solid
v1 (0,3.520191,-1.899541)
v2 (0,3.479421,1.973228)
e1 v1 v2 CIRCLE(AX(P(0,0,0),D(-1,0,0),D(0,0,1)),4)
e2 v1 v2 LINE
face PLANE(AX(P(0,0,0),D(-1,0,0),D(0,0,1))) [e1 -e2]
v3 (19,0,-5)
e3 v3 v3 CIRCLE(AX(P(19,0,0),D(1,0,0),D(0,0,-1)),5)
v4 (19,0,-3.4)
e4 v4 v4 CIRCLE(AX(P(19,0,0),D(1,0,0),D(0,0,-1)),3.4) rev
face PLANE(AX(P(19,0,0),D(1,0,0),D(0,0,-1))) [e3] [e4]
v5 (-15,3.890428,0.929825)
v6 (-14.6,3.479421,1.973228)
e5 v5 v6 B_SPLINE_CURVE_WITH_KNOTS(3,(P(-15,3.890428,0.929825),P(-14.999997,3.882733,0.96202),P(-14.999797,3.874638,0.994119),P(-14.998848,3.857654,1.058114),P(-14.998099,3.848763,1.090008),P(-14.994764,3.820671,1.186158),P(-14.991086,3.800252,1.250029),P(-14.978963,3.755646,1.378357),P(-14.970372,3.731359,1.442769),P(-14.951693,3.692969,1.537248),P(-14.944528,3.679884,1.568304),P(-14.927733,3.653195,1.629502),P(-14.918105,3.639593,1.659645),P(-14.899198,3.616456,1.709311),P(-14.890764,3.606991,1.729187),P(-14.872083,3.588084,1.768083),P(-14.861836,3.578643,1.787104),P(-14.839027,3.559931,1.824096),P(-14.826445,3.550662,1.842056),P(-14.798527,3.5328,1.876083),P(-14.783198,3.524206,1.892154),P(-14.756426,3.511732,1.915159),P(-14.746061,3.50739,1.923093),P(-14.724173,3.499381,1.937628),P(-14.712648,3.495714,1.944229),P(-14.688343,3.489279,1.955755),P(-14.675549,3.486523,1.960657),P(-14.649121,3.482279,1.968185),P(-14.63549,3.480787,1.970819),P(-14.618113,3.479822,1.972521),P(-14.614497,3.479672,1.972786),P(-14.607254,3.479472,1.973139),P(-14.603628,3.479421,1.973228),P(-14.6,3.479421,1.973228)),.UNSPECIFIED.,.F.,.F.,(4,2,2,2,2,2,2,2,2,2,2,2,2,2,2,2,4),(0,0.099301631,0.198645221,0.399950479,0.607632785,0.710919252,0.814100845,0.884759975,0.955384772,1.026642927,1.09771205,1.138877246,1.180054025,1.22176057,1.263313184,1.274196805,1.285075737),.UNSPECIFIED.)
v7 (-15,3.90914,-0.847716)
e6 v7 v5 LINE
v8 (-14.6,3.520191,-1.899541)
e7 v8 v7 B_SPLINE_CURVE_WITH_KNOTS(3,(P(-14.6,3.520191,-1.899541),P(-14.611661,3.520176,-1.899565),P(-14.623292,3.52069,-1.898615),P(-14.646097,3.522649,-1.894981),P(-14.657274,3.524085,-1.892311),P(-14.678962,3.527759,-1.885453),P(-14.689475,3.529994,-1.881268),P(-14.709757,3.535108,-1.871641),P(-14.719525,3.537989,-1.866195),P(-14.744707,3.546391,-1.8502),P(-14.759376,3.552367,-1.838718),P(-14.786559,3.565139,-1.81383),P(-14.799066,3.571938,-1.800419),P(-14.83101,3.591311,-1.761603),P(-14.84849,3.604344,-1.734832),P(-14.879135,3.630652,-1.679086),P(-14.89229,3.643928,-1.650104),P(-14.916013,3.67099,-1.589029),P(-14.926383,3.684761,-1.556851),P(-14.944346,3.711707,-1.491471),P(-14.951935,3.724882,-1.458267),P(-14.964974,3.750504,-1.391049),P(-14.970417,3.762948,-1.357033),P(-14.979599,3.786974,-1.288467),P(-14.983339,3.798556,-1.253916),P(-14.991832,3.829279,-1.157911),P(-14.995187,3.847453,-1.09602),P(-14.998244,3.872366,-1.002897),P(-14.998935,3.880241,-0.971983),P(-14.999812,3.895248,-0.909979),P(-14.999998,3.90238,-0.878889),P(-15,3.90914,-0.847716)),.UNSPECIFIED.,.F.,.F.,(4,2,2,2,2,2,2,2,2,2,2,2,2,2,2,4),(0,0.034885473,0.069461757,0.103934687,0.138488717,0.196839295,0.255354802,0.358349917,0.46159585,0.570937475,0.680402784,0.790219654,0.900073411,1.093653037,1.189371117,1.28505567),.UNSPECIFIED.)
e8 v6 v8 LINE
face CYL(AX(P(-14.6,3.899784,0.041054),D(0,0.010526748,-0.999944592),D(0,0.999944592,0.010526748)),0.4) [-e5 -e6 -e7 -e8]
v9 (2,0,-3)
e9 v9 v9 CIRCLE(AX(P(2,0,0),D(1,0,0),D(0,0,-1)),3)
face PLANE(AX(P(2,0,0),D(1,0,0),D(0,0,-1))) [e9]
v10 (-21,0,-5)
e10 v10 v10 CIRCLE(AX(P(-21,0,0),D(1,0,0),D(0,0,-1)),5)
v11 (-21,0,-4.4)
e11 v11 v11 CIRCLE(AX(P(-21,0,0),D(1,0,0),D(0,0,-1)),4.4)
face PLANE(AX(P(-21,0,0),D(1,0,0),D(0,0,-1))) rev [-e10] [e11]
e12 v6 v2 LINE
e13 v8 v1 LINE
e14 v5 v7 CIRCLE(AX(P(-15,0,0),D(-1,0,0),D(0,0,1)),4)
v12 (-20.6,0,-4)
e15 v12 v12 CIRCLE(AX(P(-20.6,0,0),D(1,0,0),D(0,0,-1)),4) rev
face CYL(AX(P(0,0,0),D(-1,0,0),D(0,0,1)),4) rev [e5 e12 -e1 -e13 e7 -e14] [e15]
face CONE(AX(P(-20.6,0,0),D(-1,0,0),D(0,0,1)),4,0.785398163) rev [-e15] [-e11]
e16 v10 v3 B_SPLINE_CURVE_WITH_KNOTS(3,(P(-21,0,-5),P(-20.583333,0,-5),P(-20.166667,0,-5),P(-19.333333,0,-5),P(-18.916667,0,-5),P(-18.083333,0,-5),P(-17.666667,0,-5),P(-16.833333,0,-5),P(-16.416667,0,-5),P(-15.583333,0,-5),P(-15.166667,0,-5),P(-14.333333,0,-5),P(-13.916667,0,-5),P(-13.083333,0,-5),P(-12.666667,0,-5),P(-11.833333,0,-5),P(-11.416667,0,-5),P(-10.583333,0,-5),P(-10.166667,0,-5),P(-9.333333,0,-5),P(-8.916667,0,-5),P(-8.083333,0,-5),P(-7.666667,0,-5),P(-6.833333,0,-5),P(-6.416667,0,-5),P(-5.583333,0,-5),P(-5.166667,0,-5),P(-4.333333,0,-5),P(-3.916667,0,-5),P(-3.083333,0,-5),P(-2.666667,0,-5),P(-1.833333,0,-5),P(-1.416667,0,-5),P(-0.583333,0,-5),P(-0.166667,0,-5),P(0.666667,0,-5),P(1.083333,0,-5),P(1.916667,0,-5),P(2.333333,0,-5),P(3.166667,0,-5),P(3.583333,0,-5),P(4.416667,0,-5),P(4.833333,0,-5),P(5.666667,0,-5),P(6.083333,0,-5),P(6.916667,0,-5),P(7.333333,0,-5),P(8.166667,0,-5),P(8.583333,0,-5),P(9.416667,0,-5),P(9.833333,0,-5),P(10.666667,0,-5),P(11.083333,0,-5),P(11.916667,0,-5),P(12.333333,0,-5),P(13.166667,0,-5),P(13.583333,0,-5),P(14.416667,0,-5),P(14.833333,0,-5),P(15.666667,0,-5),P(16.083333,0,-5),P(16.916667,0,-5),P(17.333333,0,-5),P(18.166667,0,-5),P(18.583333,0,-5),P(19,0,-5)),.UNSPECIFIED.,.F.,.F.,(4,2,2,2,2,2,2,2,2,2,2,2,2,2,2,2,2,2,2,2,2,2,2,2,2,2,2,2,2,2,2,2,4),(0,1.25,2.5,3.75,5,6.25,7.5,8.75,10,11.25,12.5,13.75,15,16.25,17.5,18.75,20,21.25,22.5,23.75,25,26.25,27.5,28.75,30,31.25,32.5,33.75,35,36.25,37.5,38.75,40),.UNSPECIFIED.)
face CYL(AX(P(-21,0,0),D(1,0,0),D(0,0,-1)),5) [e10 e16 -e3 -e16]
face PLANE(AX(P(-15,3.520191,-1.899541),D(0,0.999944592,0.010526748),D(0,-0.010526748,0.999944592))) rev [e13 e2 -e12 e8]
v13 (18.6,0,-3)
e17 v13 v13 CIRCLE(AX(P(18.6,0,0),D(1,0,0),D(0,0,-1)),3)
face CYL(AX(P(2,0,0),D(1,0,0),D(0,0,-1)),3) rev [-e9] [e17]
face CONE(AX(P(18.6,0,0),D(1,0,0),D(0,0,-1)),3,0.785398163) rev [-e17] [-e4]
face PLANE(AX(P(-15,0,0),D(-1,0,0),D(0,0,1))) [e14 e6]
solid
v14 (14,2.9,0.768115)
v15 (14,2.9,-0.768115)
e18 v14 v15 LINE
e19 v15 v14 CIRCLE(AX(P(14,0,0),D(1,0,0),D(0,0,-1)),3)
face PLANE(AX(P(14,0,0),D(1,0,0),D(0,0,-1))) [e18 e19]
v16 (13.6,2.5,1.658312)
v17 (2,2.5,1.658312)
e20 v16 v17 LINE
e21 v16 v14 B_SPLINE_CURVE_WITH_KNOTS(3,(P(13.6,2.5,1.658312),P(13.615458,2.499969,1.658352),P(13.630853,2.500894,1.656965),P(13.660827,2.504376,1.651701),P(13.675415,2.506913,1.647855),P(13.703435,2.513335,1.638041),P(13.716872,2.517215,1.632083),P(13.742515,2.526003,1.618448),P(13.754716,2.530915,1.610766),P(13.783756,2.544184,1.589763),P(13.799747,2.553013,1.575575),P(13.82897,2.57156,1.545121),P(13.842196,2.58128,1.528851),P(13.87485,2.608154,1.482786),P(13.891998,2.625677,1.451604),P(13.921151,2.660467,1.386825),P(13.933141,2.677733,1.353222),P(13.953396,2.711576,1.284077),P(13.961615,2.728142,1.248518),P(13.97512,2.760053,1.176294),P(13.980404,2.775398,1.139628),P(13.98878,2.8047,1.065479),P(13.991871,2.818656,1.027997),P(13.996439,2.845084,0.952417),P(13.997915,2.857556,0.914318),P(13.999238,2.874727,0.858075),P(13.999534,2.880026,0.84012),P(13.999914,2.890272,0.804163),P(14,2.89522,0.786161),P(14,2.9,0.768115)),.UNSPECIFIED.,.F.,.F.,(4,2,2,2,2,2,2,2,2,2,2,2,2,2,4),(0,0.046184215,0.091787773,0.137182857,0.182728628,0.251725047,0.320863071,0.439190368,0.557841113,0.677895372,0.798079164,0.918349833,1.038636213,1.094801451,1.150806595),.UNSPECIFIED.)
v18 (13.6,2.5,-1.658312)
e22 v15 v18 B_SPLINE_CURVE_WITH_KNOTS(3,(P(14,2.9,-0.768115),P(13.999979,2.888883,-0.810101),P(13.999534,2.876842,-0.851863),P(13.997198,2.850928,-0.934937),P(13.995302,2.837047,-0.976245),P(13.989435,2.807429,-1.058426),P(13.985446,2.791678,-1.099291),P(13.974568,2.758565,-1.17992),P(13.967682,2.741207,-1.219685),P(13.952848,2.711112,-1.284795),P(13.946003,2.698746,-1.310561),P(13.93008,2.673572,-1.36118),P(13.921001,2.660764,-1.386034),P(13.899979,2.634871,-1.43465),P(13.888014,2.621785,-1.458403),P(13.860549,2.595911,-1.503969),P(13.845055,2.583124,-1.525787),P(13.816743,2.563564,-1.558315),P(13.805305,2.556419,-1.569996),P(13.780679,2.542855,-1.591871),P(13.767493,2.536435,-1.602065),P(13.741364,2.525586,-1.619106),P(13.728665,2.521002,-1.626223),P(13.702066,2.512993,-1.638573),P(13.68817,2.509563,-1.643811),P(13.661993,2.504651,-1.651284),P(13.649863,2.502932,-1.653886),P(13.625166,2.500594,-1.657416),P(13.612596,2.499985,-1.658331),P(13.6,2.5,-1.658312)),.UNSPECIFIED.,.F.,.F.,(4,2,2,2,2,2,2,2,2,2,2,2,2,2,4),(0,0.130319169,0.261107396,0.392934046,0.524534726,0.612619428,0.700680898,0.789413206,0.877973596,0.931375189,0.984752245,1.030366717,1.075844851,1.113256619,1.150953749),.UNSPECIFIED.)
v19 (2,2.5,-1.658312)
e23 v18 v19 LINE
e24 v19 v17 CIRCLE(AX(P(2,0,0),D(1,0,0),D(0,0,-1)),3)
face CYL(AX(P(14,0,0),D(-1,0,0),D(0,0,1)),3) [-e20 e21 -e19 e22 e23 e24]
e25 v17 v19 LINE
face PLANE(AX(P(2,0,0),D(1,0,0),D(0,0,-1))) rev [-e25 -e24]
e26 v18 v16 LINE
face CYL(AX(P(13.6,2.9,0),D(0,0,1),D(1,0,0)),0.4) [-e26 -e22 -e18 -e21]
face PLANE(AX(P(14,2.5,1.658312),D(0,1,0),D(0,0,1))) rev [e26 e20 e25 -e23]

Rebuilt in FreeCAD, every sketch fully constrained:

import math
import FreeCAD as App
import Part
import Sketcher
from FreeCAD import Vector
Q = App.Units.Quantity


def edges_at(feature, points):
    """Names of the edges that pass closest to the given points."""
    edges = feature.Shape.Edges
    near = lambda p: min(range(len(edges)), key=lambda i: edges[i].distToShape(Part.Vertex(*p))[0])
    return sorted({f"Edge{near(p) + 1}" for p in points})

doc = App.newDocument("Part")
params = doc.addObject("Spreadsheet::Sheet", "Params")
for row, (alias, value) in enumerate([
    ("sketch1_diameter", "10 mm"),
    ("pad1_length", "19 mm"),
    ("pad1_length2", "21 mm"),
    ("sketch2_diameter", "6 mm"),
    ("pocket1_length", "17 mm"),
    ("sketch3_diameter", "8 mm"),
    ("pocket2_length", "21 mm"),
    ("sketch4_radius", "4 mm"),
    ("pad2_length", "15 mm"),
    ("chamfer_size", "0.4 mm"),
    ("fillet_radius", "0.4 mm"),
    ("sketch5_radius", "3 mm"),
    ("pad3_length", "12 mm"),
    ("fillet2_radius", "0.4 mm"),
], start=1):
    params.set(f"A{row}", alias)
    params.set(f"B{row}", "=" + value)
    params.setAlias(f"B{row}", alias)

body = doc.addObject("PartDesign::Body", "Body")

# Sketch on YZ plane
sketch1 = body.newObject("Sketcher::SketchObject", "Sketch")
sketch1.AttachmentSupport = (doc.getObject("YZ_Plane"), [""])
sketch1.MapMode = "FlatFace"
sketch1.addGeometry(Part.Circle(Vector(0, 0, 0), Vector(0, 0, 1), 5), False)
sketch1.addConstraint(Sketcher.Constraint("Coincident", 0, 3, -1, 1))
sketch1.addConstraint(Sketcher.Constraint("Diameter", 0, Q("10 mm")))
sketch1.setExpression("Constraints[1]", "Params.sketch1_diameter")
pad1 = body.newObject("PartDesign::Pad", "Pad")
pad1.Profile = sketch1
pad1.Type = "TwoLengths"
pad1.setExpression("Length", "Params.pad1_length")
pad1.setExpression("Length2", "Params.pad1_length2")

# Sketch on YZ plane
sketch2 = body.newObject("Sketcher::SketchObject", "Sketch001")
sketch2.AttachmentSupport = (doc.getObject("YZ_Plane"), [""])
sketch2.MapMode = "FlatFace"
sketch2.AttachmentOffset = App.Placement(Vector(0, 0, 19), App.Rotation())
sketch2.addGeometry(Part.Circle(Vector(0, 0, 0), Vector(0, 0, 1), 3), False)
sketch2.addConstraint(Sketcher.Constraint("Coincident", 0, 3, -1, 1))
sketch2.addConstraint(Sketcher.Constraint("Diameter", 0, Q("6 mm")))
sketch2.setExpression("Constraints[1]", "Params.sketch2_diameter")
pocket1 = body.newObject("PartDesign::Pocket", "Pocket")
pocket1.Profile = sketch2
pocket1.setExpression("Length", "Params.pocket1_length")

# Sketch on YZ plane
sketch3 = body.newObject("Sketcher::SketchObject", "Sketch002")
sketch3.AttachmentSupport = (doc.getObject("YZ_Plane"), [""])
sketch3.MapMode = "FlatFace"
sketch3.AttachmentOffset = App.Placement(Vector(0, 0, -21), App.Rotation())
sketch3.addGeometry(Part.Circle(Vector(0, 0, 0), Vector(0, 0, 1), 4), False)
sketch3.addConstraint(Sketcher.Constraint("Coincident", 0, 3, -1, 1))
sketch3.addConstraint(Sketcher.Constraint("Diameter", 0, Q("8 mm")))
sketch3.setExpression("Constraints[1]", "Params.sketch3_diameter")
pocket2 = body.newObject("PartDesign::Pocket", "Pocket001")
pocket2.Profile = sketch3
pocket2.setExpression("Length", "Params.pocket2_length")
pocket2.Reversed = True

# Sketch on YZ plane
sketch4 = body.newObject("Sketcher::SketchObject", "Sketch003")
sketch4.AttachmentSupport = (doc.getObject("YZ_Plane"), [""])
sketch4.MapMode = "FlatFace"
sketch4.AttachmentOffset = App.Placement(Vector(0, 0, -15), App.Rotation())
sketch4.addGeometry(Part.LineSegment(Vector(3.5, -1.9, 0), Vector(3.5, 2, 0)), False)
sketch4.addGeometry(Part.ArcOfCircle(Part.Circle(Vector(0, 0, 0), Vector(0, 0, 1), 4), math.radians(-28), math.radians(30)), False)
sketch4.addConstraint(Sketcher.Constraint("Coincident", 0, 1, 1, 1))
sketch4.addConstraint(Sketcher.Constraint("Coincident", 1, 2, 0, 2))
sketch4.addConstraint(Sketcher.Constraint("Coincident", 1, 3, -1, 1))
sketch4.addConstraint(Sketcher.Constraint("Radius", 1, Q("4 mm")))
sketch4.addConstraint(Sketcher.Constraint("DistanceX", -1, 1, 0, 1, Q("3.520191 mm")))
sketch4.addConstraint(Sketcher.Constraint("DistanceX", -1, 1, 1, 2, Q("3.479421 mm")))
sketch4.setExpression("Constraints[3]", "Params.sketch4_radius")
pad2 = body.newObject("PartDesign::Pad", "Pad001")
pad2.Profile = sketch4
pad2.setExpression("Length", "Params.pad2_length")
doc.recompute()

chamfer = body.newObject("PartDesign::Chamfer", "Chamfer")
chamfer.Base = (pad2, edges_at(pad2, [(-21, 0, -4), (19, 0, 3)]))
chamfer.setExpression("Size", "Params.chamfer_size")
doc.recompute()

fillet = body.newObject("PartDesign::Fillet", "Fillet")
fillet.Base = (chamfer, edges_at(chamfer, [(-15, 3.5, 0.037)]))
fillet.setExpression("Radius", "Params.fillet_radius")
body2 = doc.addObject("PartDesign::Body", "Body001")

# Sketch on YZ plane
sketch5 = body2.newObject("Sketcher::SketchObject", "Sketch004")
sketch5.AttachmentSupport = (doc.getObject("YZ_Plane001"), [""])
sketch5.MapMode = "FlatFace"
sketch5.AttachmentOffset = App.Placement(Vector(0, 0, 2), App.Rotation())
sketch5.addGeometry(Part.LineSegment(Vector(2.5, 1.7, 0), Vector(2.5, -1.7, 0)), False)
sketch5.addGeometry(Part.ArcOfCircle(Part.Circle(Vector(0, 0, 0), Vector(0, 0, 1), 3), math.radians(-34), math.radians(34)), False)
sketch5.addConstraint(Sketcher.Constraint("Coincident", 0, 1, 1, 2))
sketch5.addConstraint(Sketcher.Constraint("Coincident", 1, 1, 0, 2))
sketch5.addConstraint(Sketcher.Constraint("Vertical", 0))
sketch5.addConstraint(Sketcher.Constraint("Coincident", 1, 3, -1, 1))
sketch5.addConstraint(Sketcher.Constraint("Radius", 1, Q("3 mm")))
sketch5.addConstraint(Sketcher.Constraint("DistanceX", -1, 1, 0, 1, Q("2.5 mm")))
sketch5.setExpression("Constraints[4]", "Params.sketch5_radius")
pad3 = body2.newObject("PartDesign::Pad", "Pad002")
pad3.Profile = sketch5
pad3.setExpression("Length", "Params.pad3_length")
doc.recompute()

fillet2 = body2.newObject("PartDesign::Fillet", "Fillet001")
fillet2.Base = (pad3, edges_at(pad3, [(14, 2.5, 0)]))
fillet2.setExpression("Radius", "Params.fillet2_radius")

doc.recompute()
